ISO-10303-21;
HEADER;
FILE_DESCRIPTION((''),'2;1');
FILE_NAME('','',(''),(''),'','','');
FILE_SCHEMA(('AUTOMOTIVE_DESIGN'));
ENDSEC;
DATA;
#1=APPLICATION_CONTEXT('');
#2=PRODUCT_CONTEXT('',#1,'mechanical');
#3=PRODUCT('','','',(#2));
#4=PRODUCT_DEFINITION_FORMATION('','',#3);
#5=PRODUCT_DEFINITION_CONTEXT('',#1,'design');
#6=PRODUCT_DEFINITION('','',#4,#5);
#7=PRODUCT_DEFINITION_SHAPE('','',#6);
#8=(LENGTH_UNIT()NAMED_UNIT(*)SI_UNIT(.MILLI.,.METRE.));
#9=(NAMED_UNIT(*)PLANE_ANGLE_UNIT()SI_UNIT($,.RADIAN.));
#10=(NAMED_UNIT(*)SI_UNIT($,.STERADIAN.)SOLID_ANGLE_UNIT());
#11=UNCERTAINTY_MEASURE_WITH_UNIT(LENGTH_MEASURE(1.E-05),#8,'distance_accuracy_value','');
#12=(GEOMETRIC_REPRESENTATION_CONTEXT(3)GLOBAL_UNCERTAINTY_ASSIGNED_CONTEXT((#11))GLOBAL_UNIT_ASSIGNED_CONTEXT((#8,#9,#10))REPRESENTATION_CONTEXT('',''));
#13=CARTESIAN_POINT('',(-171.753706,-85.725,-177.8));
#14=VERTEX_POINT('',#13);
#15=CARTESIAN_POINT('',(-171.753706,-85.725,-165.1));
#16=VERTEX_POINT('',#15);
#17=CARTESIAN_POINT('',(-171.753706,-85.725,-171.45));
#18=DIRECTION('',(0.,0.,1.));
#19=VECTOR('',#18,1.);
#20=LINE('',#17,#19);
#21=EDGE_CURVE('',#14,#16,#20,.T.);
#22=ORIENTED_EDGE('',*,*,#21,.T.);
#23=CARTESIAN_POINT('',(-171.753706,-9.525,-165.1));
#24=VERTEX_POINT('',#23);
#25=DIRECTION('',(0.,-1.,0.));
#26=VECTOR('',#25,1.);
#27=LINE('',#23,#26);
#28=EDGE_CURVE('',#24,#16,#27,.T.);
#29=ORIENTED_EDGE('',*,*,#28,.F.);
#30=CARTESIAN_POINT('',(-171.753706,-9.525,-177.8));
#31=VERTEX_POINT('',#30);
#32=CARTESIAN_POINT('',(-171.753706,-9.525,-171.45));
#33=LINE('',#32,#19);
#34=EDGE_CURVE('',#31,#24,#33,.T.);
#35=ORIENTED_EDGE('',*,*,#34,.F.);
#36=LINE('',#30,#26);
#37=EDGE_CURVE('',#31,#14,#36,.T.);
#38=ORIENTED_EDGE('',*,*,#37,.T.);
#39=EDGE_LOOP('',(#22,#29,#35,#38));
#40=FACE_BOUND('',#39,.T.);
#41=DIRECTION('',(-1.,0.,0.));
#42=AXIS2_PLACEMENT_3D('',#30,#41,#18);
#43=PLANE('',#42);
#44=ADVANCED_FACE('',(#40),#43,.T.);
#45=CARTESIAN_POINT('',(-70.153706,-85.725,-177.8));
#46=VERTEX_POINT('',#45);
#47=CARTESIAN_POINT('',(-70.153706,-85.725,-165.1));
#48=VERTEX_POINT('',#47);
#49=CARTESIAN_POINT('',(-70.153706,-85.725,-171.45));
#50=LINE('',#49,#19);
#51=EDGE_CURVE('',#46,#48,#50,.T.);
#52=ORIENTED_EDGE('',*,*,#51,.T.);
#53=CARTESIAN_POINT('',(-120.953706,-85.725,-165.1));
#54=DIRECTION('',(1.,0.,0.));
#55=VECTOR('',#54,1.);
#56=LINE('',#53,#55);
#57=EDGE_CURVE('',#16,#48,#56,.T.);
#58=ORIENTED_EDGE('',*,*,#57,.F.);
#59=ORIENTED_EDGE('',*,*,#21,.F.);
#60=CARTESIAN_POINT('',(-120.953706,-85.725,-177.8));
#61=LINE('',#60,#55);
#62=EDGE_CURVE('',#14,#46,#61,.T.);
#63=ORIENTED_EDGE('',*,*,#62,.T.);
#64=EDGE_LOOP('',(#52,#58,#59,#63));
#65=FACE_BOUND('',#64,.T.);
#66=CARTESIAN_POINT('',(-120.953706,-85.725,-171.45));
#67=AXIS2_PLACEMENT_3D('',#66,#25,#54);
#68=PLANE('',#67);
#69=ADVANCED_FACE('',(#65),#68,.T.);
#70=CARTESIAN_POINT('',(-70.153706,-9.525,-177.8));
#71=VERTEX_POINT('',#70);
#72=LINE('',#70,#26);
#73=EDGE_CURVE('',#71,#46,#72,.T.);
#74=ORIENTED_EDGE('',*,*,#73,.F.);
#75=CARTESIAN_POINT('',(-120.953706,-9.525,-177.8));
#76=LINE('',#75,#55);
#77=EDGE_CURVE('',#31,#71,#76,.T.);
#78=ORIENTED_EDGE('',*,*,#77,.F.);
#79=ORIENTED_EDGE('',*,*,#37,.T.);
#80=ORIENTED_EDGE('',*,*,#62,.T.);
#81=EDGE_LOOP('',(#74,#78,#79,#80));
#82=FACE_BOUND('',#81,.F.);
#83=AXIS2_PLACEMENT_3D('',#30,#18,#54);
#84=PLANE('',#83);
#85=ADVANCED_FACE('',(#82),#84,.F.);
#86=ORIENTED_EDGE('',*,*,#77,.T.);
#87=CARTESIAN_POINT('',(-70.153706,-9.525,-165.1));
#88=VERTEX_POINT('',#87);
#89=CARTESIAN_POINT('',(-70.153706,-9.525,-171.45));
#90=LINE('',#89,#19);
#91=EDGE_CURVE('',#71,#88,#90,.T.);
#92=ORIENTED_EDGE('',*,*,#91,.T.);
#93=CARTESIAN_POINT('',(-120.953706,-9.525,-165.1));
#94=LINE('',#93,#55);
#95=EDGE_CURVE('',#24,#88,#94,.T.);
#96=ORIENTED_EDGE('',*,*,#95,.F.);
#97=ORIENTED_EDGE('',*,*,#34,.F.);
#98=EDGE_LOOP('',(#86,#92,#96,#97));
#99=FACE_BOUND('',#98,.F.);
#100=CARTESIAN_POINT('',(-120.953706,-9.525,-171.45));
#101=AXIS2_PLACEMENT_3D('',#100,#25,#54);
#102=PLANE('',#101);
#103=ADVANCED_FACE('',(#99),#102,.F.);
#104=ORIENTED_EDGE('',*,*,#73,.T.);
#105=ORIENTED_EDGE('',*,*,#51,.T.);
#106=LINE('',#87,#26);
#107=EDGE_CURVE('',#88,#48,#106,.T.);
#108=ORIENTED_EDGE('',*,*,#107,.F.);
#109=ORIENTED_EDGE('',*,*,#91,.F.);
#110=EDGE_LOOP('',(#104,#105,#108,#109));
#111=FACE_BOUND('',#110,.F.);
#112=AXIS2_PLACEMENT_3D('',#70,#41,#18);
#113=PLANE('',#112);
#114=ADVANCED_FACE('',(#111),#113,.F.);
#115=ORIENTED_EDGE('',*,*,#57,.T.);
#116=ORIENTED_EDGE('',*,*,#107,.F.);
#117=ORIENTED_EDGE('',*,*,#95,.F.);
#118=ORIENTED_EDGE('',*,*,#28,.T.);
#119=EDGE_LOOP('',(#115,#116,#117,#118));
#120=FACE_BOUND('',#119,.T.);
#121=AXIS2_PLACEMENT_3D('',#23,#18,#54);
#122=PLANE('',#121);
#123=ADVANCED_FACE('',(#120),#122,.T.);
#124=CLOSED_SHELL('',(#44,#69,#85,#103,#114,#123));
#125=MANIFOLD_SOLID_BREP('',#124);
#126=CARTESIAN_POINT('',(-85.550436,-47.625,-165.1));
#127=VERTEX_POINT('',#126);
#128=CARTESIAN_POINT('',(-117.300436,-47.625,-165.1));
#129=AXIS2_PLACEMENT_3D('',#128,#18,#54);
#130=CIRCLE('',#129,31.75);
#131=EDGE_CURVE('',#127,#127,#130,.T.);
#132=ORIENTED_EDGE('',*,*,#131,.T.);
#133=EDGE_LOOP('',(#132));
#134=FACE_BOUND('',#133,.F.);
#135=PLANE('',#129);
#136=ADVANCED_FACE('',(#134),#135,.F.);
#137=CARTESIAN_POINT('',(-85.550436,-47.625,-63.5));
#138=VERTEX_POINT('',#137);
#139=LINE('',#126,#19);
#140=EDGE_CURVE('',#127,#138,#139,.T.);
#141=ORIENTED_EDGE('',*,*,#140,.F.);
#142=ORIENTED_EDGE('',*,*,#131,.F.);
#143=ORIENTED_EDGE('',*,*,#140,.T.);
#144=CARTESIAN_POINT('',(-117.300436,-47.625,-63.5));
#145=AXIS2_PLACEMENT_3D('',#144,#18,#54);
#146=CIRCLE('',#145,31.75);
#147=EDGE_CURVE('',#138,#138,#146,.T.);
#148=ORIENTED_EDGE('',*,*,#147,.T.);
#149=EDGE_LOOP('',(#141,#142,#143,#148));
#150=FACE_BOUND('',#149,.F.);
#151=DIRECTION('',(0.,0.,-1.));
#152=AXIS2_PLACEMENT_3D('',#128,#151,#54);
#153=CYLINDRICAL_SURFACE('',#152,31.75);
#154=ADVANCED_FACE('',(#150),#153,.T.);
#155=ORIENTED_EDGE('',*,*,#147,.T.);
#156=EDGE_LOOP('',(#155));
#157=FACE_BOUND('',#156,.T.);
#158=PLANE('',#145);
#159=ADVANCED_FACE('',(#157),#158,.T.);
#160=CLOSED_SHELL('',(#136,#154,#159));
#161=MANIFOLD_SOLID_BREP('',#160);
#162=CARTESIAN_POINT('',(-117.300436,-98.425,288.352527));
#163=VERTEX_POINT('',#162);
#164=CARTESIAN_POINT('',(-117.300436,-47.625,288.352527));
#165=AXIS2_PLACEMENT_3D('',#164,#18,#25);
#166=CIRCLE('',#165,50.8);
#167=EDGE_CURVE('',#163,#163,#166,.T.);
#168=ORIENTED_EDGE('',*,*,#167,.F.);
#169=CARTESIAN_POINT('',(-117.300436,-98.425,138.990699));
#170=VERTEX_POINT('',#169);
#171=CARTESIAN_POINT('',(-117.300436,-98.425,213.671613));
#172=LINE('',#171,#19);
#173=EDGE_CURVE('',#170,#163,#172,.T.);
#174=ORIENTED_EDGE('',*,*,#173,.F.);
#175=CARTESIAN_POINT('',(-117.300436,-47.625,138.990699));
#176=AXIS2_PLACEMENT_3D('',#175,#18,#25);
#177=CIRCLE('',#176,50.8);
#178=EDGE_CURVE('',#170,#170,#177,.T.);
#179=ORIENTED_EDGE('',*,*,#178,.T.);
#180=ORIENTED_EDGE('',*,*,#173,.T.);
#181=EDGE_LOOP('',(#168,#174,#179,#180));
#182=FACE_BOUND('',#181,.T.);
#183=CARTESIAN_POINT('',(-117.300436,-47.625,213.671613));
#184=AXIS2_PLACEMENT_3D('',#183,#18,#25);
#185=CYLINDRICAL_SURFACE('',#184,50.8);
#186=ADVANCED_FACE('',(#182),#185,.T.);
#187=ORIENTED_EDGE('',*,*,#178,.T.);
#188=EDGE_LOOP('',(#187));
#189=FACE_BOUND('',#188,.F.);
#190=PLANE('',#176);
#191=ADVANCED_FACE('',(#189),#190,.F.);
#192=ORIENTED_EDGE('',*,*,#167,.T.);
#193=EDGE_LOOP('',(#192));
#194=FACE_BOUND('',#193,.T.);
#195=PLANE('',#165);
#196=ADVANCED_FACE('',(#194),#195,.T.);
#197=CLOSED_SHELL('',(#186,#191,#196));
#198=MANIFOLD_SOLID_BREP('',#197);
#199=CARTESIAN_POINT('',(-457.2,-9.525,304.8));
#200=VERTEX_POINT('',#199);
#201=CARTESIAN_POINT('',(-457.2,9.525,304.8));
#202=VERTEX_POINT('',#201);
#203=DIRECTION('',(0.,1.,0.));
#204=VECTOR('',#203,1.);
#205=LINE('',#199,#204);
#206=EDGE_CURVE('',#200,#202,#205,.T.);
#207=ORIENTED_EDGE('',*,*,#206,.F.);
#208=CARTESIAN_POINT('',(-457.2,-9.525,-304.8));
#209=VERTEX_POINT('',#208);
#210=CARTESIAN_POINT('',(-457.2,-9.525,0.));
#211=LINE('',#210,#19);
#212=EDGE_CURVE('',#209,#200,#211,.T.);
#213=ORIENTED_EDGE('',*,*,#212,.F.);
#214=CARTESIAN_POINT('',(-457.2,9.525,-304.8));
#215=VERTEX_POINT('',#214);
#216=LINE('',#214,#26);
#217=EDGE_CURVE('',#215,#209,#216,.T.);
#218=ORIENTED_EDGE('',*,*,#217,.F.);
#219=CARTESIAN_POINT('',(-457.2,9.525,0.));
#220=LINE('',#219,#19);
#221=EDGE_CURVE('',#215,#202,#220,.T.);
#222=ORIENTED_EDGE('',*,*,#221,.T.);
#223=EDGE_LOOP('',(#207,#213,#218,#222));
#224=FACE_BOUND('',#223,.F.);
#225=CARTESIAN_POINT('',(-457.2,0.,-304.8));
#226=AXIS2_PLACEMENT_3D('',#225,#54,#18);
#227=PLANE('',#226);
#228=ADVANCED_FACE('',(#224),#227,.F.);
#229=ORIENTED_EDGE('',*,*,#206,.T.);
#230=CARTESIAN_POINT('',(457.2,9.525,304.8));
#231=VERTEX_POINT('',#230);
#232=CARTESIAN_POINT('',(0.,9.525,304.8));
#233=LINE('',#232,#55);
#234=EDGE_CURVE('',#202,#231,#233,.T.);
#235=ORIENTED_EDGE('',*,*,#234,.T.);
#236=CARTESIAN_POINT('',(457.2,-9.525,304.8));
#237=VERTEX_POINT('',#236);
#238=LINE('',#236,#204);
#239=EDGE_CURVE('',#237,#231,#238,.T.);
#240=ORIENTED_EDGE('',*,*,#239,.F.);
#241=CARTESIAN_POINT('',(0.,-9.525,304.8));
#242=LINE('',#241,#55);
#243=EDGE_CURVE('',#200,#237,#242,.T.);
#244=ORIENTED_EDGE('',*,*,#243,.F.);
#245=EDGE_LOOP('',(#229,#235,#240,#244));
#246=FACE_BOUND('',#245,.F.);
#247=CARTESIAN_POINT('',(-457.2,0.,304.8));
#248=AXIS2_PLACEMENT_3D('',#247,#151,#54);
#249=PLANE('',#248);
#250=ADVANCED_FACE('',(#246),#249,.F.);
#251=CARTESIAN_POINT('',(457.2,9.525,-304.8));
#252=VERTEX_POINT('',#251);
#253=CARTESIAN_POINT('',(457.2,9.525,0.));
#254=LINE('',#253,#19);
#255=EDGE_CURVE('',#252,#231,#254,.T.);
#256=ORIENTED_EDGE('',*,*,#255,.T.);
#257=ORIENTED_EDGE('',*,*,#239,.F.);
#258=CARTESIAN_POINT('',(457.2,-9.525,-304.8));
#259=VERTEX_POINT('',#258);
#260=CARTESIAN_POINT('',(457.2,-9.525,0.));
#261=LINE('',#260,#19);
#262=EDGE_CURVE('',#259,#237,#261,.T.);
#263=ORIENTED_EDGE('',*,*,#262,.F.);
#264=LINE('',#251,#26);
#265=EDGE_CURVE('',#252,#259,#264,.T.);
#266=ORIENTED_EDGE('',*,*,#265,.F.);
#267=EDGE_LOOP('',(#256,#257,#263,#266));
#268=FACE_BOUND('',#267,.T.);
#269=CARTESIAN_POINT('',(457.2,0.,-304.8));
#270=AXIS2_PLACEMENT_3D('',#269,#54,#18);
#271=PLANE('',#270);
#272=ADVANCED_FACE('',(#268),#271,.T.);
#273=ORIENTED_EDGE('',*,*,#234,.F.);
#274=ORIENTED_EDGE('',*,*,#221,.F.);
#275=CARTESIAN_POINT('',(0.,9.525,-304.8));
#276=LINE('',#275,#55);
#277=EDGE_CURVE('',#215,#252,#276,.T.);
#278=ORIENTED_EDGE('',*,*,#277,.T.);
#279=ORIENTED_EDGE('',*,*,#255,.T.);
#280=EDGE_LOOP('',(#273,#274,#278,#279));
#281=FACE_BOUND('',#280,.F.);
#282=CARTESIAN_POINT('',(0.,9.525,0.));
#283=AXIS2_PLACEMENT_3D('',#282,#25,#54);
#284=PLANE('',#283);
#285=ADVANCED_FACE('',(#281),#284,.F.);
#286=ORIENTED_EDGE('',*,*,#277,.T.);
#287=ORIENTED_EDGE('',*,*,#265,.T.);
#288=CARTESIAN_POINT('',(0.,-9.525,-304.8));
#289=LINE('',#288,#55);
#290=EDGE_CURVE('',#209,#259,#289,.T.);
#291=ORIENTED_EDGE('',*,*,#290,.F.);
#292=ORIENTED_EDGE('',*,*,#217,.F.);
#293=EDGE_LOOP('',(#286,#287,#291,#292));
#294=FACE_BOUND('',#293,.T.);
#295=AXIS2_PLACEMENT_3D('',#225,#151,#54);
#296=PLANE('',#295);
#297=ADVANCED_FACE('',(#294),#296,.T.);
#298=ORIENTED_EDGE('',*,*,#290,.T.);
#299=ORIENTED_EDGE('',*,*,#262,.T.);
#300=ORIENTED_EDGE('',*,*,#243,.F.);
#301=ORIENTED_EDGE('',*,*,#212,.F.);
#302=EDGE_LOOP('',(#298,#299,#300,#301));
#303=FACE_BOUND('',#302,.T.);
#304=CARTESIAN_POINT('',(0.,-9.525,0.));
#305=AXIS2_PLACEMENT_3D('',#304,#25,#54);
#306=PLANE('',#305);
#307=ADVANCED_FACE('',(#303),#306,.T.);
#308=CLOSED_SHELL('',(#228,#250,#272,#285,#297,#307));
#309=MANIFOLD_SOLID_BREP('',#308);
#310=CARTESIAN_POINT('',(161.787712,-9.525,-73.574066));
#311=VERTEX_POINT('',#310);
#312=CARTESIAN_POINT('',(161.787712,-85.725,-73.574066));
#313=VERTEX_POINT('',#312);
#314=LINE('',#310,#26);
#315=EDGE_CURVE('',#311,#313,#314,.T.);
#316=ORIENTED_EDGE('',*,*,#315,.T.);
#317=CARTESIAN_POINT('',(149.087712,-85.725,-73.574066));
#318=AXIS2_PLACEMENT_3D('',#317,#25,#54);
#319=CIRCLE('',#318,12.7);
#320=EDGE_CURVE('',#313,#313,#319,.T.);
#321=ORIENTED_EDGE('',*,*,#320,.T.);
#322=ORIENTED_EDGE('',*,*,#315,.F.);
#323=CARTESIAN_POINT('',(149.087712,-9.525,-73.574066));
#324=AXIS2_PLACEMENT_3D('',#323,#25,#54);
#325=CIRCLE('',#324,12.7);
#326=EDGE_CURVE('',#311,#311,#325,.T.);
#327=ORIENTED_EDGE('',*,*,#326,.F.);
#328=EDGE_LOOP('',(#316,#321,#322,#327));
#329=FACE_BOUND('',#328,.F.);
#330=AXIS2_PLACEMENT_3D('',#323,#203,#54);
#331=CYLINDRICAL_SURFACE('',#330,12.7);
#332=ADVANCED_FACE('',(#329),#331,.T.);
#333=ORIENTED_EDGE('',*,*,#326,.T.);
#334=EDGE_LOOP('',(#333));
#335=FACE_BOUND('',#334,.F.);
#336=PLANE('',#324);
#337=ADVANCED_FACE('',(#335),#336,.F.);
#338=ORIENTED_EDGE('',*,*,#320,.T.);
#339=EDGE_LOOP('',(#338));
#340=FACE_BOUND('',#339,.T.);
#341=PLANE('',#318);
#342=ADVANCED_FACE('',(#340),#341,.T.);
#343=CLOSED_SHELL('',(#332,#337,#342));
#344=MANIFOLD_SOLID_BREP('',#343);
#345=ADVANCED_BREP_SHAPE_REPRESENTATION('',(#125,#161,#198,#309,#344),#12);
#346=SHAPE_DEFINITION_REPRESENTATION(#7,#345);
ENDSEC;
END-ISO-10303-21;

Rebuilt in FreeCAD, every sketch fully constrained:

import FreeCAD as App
import Part
import Sketcher

V = App.Vector
Q = App.Units.Quantity


def add_polygon(sketch, points):
    """Adds a closed chain of lines whose ends are joined by coincident constraints."""
    first, n = sketch.GeometryCount, len(points)
    for a, b in zip(points, points[1:] + points[:1]):
        sketch.addGeometry(Part.LineSegment(App.Vector(*a, 0), App.Vector(*b, 0)), False)
    for i in range(n):
        sketch.addConstraint(Sketcher.Constraint("Coincident", first + i, 2, first + (i + 1) % n, 1))

doc = App.newDocument("Part")
body = doc.addObject("PartDesign::Body", "Body")

sketch1 = body.newObject("Sketcher::SketchObject", "Sketch")
sketch1.AttachmentSupport = (doc.getObject("XZ_Plane"), [""])
sketch1.MapMode = "FlatFace"
add_polygon(sketch1, [(-457.2, 304.8), (-457.2, -304.8), (457.2, -304.8), (457.2, 304.8)])
sketch1.addConstraint(Sketcher.Constraint("Vertical", 0))
sketch1.addConstraint(Sketcher.Constraint("Horizontal", 1))
sketch1.addConstraint(Sketcher.Constraint("Vertical", 2))
sketch1.addConstraint(Sketcher.Constraint("Horizontal", 3))
sketch1.addConstraint(Sketcher.Constraint("Symmetric", 0, 2, 2, 2, -1, 1))
sketch1.addConstraint(Sketcher.Constraint("DistanceX", 1, 1, 1, 2, Q("36 in")))
sketch1.addConstraint(Sketcher.Constraint("DistanceY", 0, 2, 0, 1, Q("24 in")))
pad1 = body.newObject("PartDesign::Pad", "Pad")
pad1.Profile = sketch1
pad1.Length = Q("0.75 in")
pad1.Midplane = True
body2 = doc.addObject("PartDesign::Body", "Body001")

sketch2 = body2.newObject("Sketcher::SketchObject", "Sketch001")
sketch2.AttachmentSupport = (doc.getObject("XZ_Plane001"), [""])
sketch2.MapMode = "FlatFace"
sketch2.AttachmentOffset = App.Placement(V(0, 0, 0.375 * 25.4), App.Rotation())
add_polygon(sketch2, [(-171.753706, -165.1), (-171.753706, -177.8), (-70.153706, -177.8), (-70.153706, -165.1)])
sketch2.addConstraint(Sketcher.Constraint("Vertical", 0))
sketch2.addConstraint(Sketcher.Constraint("Horizontal", 1))
sketch2.addConstraint(Sketcher.Constraint("Vertical", 2))
sketch2.addConstraint(Sketcher.Constraint("Horizontal", 3))
sketch2.addConstraint(Sketcher.Constraint("DistanceX", 1, 1, 1, 2, Q("4 in")))
sketch2.addConstraint(Sketcher.Constraint("DistanceY", 0, 2, 0, 1, Q("0.5 in")))
sketch2.addConstraint(Sketcher.Constraint("DistanceY", 0, 2, -1, 1, Q("7 in")))
sketch2.addConstraint(Sketcher.Constraint("DistanceX", 0, 2, -1, 1, 171.753706))
pad2 = body2.newObject("PartDesign::Pad", "Pad001")
pad2.Profile = sketch2
pad2.Length = Q("3 in")
body3 = doc.addObject("PartDesign::Body", "Body002")

sketch3 = body3.newObject("Sketcher::SketchObject", "Sketch002")
sketch3.AttachmentSupport = (doc.getObject("XY_Plane002"), [""])
sketch3.MapMode = "FlatFace"
sketch3.AttachmentOffset = App.Placement(V(0, 0, -6.5 * 25.4), App.Rotation())
sketch3.addGeometry(Part.Circle(V(-117.300436, -47.625, 0), V(0, 0, 1), 31.75), False)
sketch3.addConstraint(Sketcher.Constraint("Diameter", 0, Q("2.5 in")))
sketch3.addConstraint(Sketcher.Constraint("DistanceY", 0, 3, -1, 1, Q("1.875 in")))
sketch3.addConstraint(Sketcher.Constraint("DistanceX", 0, 3, -1, 1, 117.300436))
pad3 = body3.newObject("PartDesign::Pad", "Pad002")
pad3.Profile = sketch3
pad3.Length = Q("4 in")
body4 = doc.addObject("PartDesign::Body", "Body003")

sketch4 = body4.newObject("Sketcher::SketchObject", "Sketch003")
sketch4.AttachmentSupport = (doc.getObject("XZ_Plane003"), [""])
sketch4.MapMode = "FlatFace"
sketch4.AttachmentOffset = App.Placement(V(0, 0, 0.375 * 25.4), App.Rotation())
sketch4.addGeometry(Part.Circle(V(149.087712, -73.574066, 0), V(0, 0, 1), 12.7), False)
sketch4.addConstraint(Sketcher.Constraint("Diameter", 0, Q("1 in")))
sketch4.addConstraint(Sketcher.Constraint("DistanceX", -1, 1, 0, 3, 149.087712))
sketch4.addConstraint(Sketcher.Constraint("DistanceY", 0, 3, -1, 1, 73.574066))
pad4 = body4.newObject("PartDesign::Pad", "Pad003")
pad4.Profile = sketch4
pad4.Length = Q("3 in")
body5 = doc.addObject("PartDesign::Body", "Body004")

sketch5 = body5.newObject("Sketcher::SketchObject", "Sketch004")
sketch5.AttachmentSupport = (doc.getObject("YZ_Plane004"), [""])
sketch5.MapMode = "FlatFace"
sketch5.AttachmentOffset = App.Placement(V(0, 0, -117.300436), App.Rotation())
add_polygon(sketch5, [(-98.425, 288.352527), (-98.425, 138.990699), (-47.625, 138.990699), (-47.625, 288.352527)])
sketch5.addGeometry(Part.LineSegment(V(-47.625, 138.990699, 0), V(-47.625, 288.352527, 0)), True)
sketch5.addConstraint(Sketcher.Constraint("Vertical", 0))
sketch5.addConstraint(Sketcher.Constraint("Horizontal", 1))
sketch5.addConstraint(Sketcher.Constraint("Vertical", 2))
sketch5.addConstraint(Sketcher.Constraint("Horizontal", 3))
sketch5.addConstraint(Sketcher.Constraint("Vertical", 4))
sketch5.addConstraint(Sketcher.Constraint("Coincident", 4, 1, 1, 2))
sketch5.addConstraint(Sketcher.Constraint("Horizontal", 3, 2, 4, 2))
sketch5.addConstraint(Sketcher.Constraint("DistanceX", 1, 1, 1, 2, Q("2 in")))
sketch5.addConstraint(Sketcher.Constraint("DistanceX", 0, 2, -1, 1, Q("3.875 in")))
sketch5.addConstraint(Sketcher.Constraint("DistanceY", 0, 2, 0, 1, 149.361829))
sketch5.addConstraint(Sketcher.Constraint("DistanceY", -1, 1, 0, 2, 138.990699))
revolution = body5.newObject("PartDesign::Revolution", "Revolution")
revolution.Profile = sketch5
revolution.ReferenceAxis = (sketch5, ["Axis0"])
revolution.Angle = 360

doc.recompute()
